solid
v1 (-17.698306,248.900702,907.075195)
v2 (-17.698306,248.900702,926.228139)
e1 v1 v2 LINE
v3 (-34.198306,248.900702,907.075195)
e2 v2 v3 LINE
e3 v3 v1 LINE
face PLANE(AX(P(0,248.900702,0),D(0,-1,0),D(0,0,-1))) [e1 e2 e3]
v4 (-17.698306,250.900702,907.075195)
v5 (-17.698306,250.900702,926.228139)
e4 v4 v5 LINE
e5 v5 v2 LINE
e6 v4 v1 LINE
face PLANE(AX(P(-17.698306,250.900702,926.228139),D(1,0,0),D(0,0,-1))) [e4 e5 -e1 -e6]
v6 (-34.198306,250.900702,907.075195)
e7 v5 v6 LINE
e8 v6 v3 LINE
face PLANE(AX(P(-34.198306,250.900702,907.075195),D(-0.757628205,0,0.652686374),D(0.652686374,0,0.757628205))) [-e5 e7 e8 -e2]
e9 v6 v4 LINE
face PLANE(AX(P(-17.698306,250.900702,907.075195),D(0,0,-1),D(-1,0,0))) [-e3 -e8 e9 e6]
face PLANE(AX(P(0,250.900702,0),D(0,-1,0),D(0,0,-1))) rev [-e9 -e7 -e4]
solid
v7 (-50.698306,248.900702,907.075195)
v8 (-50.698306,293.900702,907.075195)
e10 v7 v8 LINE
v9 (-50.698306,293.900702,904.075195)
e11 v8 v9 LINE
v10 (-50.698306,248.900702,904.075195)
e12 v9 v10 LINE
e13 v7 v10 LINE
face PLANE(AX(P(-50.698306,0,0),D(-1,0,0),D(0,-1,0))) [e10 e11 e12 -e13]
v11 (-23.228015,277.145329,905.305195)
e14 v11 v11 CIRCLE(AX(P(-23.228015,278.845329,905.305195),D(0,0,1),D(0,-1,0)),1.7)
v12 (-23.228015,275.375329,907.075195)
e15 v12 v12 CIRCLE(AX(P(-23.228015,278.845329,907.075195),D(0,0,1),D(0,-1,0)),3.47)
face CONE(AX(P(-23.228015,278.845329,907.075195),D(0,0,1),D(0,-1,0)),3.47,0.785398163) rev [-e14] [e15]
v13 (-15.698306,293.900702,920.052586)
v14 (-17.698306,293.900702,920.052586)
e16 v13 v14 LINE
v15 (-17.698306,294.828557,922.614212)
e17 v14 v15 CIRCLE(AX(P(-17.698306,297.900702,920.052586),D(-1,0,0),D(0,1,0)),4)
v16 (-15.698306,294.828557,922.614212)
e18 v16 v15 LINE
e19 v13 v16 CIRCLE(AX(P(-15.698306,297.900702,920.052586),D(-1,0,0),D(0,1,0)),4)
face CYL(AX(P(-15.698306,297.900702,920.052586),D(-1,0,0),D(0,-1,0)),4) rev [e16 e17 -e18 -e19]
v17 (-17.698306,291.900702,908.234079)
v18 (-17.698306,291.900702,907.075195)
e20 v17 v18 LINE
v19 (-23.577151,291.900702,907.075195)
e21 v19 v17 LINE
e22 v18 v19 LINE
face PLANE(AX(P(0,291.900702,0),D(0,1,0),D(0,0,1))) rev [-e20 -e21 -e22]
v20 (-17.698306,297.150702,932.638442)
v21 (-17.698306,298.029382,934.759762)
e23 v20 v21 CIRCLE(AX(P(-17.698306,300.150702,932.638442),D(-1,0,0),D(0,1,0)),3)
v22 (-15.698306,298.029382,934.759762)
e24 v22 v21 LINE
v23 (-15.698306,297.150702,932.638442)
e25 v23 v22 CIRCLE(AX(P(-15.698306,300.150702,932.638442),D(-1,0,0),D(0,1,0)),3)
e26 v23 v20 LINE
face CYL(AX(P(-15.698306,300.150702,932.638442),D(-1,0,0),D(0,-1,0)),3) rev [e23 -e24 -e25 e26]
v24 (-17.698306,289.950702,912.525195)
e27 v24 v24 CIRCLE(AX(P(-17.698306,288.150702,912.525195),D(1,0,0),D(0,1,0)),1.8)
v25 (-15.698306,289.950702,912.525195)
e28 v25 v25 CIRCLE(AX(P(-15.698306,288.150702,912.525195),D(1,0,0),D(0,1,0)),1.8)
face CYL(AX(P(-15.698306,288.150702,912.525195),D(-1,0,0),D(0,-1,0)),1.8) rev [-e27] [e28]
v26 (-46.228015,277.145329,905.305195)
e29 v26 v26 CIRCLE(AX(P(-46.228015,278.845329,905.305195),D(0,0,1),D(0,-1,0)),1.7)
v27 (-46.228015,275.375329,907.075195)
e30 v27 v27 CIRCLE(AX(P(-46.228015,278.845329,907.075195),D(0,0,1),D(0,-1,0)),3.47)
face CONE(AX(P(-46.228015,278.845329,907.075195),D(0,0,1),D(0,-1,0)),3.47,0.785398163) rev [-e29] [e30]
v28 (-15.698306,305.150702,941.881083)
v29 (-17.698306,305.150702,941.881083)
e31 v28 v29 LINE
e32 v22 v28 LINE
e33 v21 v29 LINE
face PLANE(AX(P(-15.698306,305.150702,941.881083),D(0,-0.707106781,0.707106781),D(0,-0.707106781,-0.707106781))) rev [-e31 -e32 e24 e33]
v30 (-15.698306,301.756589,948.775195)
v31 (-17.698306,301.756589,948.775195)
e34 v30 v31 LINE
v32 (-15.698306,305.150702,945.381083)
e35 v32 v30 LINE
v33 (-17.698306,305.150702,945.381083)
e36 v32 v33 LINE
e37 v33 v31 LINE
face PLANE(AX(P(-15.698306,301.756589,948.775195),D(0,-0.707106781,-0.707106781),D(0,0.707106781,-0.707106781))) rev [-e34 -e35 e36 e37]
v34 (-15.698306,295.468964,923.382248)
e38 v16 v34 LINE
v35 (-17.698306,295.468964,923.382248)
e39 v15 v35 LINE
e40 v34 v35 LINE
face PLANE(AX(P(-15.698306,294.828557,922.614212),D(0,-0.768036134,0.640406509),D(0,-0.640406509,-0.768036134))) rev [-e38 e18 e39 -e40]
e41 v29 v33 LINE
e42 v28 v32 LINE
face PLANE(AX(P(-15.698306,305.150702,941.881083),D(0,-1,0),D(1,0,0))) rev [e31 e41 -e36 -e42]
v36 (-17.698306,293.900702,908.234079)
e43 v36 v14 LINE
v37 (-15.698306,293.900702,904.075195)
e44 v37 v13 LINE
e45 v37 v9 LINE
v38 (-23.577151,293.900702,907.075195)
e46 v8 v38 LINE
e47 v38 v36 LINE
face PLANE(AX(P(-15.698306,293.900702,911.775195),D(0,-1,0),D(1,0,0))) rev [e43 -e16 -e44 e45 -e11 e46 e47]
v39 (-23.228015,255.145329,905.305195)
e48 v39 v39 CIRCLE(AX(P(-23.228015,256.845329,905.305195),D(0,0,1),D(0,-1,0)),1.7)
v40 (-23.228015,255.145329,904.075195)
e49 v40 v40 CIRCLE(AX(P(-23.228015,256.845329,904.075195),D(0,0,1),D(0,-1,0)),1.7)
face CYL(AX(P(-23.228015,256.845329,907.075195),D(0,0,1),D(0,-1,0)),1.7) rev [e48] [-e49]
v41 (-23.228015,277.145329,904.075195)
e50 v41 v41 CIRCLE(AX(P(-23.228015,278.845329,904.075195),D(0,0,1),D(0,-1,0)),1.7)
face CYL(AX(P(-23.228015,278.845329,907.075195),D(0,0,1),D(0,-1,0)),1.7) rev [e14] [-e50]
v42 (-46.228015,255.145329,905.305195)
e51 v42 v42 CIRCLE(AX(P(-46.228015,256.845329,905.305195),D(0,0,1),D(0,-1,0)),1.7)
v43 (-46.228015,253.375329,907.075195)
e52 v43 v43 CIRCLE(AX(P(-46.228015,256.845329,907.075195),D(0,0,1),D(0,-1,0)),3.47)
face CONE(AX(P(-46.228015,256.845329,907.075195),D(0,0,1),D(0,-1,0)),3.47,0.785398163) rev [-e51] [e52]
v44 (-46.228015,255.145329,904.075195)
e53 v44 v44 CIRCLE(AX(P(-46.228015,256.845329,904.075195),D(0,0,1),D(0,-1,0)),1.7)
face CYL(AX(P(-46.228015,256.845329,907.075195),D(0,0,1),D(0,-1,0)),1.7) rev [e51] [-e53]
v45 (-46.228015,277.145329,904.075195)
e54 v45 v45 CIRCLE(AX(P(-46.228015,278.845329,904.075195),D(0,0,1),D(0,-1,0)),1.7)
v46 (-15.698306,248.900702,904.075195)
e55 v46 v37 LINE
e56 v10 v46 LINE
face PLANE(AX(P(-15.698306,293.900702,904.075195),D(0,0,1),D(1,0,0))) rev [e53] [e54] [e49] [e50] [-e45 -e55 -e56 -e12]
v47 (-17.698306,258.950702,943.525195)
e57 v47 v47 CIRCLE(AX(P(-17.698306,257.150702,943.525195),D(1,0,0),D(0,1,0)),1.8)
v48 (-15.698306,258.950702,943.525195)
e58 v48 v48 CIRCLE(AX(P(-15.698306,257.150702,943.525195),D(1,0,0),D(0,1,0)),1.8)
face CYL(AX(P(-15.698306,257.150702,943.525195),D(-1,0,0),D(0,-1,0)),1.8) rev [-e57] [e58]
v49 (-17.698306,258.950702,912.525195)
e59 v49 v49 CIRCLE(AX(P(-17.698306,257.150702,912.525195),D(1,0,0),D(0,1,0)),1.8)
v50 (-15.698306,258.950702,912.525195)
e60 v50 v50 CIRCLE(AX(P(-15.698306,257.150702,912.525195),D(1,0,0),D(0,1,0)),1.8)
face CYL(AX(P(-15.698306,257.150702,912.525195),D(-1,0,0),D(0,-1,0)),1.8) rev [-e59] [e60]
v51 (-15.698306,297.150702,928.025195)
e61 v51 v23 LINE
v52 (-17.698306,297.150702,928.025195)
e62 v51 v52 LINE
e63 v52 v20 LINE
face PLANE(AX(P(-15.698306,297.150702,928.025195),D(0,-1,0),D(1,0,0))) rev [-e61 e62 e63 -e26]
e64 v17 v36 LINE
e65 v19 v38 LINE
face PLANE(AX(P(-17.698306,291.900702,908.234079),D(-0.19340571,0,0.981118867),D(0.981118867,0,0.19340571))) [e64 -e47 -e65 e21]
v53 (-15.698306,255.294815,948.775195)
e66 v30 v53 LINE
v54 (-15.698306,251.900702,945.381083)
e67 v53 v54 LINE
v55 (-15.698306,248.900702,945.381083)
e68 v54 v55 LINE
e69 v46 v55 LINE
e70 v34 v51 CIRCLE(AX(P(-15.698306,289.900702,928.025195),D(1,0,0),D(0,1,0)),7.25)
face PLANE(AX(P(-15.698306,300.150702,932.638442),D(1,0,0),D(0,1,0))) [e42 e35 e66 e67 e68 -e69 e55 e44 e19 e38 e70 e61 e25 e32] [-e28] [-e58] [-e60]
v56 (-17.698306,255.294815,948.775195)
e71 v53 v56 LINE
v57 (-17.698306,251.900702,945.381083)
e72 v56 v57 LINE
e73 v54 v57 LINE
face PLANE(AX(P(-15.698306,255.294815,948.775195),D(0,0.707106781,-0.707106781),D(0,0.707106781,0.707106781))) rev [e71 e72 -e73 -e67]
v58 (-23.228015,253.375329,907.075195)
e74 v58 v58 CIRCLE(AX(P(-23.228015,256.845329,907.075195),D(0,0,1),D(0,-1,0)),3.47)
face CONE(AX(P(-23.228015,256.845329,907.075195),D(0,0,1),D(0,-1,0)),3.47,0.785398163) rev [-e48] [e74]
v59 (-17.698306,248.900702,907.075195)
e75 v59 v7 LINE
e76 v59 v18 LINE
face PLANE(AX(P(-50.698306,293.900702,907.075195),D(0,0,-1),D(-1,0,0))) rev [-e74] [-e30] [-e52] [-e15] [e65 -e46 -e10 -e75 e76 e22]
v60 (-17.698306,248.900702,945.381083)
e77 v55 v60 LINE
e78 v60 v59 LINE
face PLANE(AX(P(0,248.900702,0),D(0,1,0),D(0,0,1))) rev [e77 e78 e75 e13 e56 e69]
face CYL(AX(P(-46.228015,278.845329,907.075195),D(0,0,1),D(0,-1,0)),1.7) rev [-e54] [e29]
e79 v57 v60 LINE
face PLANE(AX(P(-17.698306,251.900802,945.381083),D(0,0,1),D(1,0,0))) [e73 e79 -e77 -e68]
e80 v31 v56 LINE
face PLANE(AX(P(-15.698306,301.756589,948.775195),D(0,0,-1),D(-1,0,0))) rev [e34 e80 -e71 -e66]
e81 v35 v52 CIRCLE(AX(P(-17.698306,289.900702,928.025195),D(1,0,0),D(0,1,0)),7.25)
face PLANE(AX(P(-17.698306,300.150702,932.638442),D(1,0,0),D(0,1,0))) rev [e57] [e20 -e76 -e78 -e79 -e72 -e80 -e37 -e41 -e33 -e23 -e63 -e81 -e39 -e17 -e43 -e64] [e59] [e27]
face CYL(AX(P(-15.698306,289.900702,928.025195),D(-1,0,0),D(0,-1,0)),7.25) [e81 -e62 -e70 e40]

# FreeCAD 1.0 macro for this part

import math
import FreeCAD as App
import Part
import Sketcher
Q = App.Units.Quantity

doc = App.newDocument("Part")
params = doc.addObject("Spreadsheet::Sheet", "Params")
for row, (alias, value) in enumerate([
    ("sketch1_radius", "4 mm"),
    ("sketch1_radius2", "3 mm"),
    ("sketch1_diameter", "3.6 mm"),
    ("sketch1_width", "42 mm"),
    ("sketch1_radius3", "7.25 mm"),
    ("pad1_length", "2 mm"),
    ("sketch2_width", "42 mm"),
    ("sketch2_height", "3 mm"),
    ("pad2_length", "33 mm"),
    ("sketch3_height", "3.65 mm"),
    ("pad3_length", "1 mm"),
    ("sketch4_width", "33 mm"),
    ("sketch4_width2", "35 mm"),
    ("sketch4_height", "3 mm"),
    ("pad4_length", "3 mm"),
    ("pad4_length2", "0.0001 mm"),
    ("pad5_length", "2.5 mm"),
    ("pocket1_length", "3 mm"),
    ("pocket2_length", "3 mm"),
    ("sketch8_height", "3 mm"),
    ("sketch8_width", "1.7 mm"),
    ("sketch8_width2", "3.47 mm"),
    ("groove_angle", "360 deg"),
    ("linearpattern_pitch", "23 mm"),
    ("linearpattern2_pitch", "22 mm"),
    ("linearpattern3_pitch", "31.827661 mm"),
    ("pad6_length", "2 mm"),
    ("sketch10_width", "16.5 mm"),
    ("pad7_length", "2 mm"),
], start=1):
    params.set(f"A{row}", alias)
    params.set(f"B{row}", "=" + value)
    params.setAlias(f"B{row}", alias)

body = doc.addObject("PartDesign::Body", "Body")

sketch1 = body.newObject("Sketcher::SketchObject", "Sketch")
sketch1.AttachmentSupport = (doc.getObject("YZ_Plane"), [""])
sketch1.MapMode = "FlatFace"
sketch1.AttachmentOffset = App.Placement(App.Vector(0, 0, -17.698306), App.Rotation())
sketch1.addGeometry(Part.LineSegment(App.Vector(251.9, 904.1, 0), App.Vector(293.9, 904.1, 0)), False)
sketch1.addGeometry(Part.LineSegment(App.Vector(293.9, 904.1, 0), App.Vector(293.9, 920.1, 0)), False)
sketch1.addGeometry(Part.ArcOfCircle(Part.Circle(App.Vector(297.9, 920.1, 0), App.Vector(0, 0, 1), 4), math.radians(140), math.radians(180)), False)
sketch1.addGeometry(Part.LineSegment(App.Vector(294.8, 922.6, 0), App.Vector(295.5, 923.4, 0)), False)
sketch1.addGeometry(Part.ArcOfCircle(Part.Circle(App.Vector(289.9, 928, 0), App.Vector(0, 0, 1), 7.2), math.radians(-40), math.radians(0)), False)
sketch1.addGeometry(Part.LineSegment(App.Vector(297.2, 928, 0), App.Vector(297.2, 932.6, 0)), False)
sketch1.addGeometry(Part.ArcOfCircle(Part.Circle(App.Vector(300.2, 932.6, 0), App.Vector(0, 0, 1), 3), math.radians(135), math.radians(180)), False)
sketch1.addGeometry(Part.LineSegment(App.Vector(298, 934.8, 0), App.Vector(301.8, 938.5, 0)), False)
sketch1.addGeometry(Part.LineSegment(App.Vector(301.8, 938.5, 0), App.Vector(305.2, 941.9, 0)), False)
sketch1.addGeometry(Part.LineSegment(App.Vector(305.2, 941.9, 0), App.Vector(305.2, 945.4, 0)), False)
sketch1.addGeometry(Part.LineSegment(App.Vector(305.2, 945.4, 0), App.Vector(301.8, 948.8, 0)), False)
sketch1.addGeometry(Part.LineSegment(App.Vector(301.8, 948.8, 0), App.Vector(255.3, 948.8, 0)), False)
sketch1.addGeometry(Part.LineSegment(App.Vector(255.3, 948.8, 0), App.Vector(251.9, 945.4, 0)), False)
sketch1.addGeometry(Part.LineSegment(App.Vector(251.9, 945.4, 0), App.Vector(251.9, 904.1, 0)), False)
sketch1.addGeometry(Part.Circle(App.Vector(257.2, 912.5, 0), App.Vector(0, 0, 1), 1.8), False)
sketch1.addGeometry(Part.Circle(App.Vector(257.2, 943.5, 0), App.Vector(0, 0, 1), 1.8), False)
sketch1.addGeometry(Part.Circle(App.Vector(288.2, 912.5, 0), App.Vector(0, 0, 1), 1.8), False)
sketch1.addConstraint(Sketcher.Constraint("Coincident", 0, 2, 1, 1))
sketch1.addConstraint(Sketcher.Constraint("Tangent", 1, 2, 2, 2))
sketch1.addConstraint(Sketcher.Constraint("Tangent", 2, 1, 3, 1))
sketch1.addConstraint(Sketcher.Constraint("Tangent", 3, 2, 4, 1))
sketch1.addConstraint(Sketcher.Constraint("Tangent", 4, 2, 5, 1))
sketch1.addConstraint(Sketcher.Constraint("Tangent", 5, 2, 6, 2))
sketch1.addConstraint(Sketcher.Constraint("Tangent", 6, 1, 7, 1))
sketch1.addConstraint(Sketcher.Constraint("Coincident", 7, 2, 8, 1))
sketch1.addConstraint(Sketcher.Constraint("Coincident", 8, 2, 9, 1))
sketch1.addConstraint(Sketcher.Constraint("Coincident", 9, 2, 10, 1))
sketch1.addConstraint(Sketcher.Constraint("Coincident", 10, 2, 11, 1))
sketch1.addConstraint(Sketcher.Constraint("Coincident", 11, 2, 12, 1))
sketch1.addConstraint(Sketcher.Constraint("Coincident", 12, 2, 13, 1))
sketch1.addConstraint(Sketcher.Constraint("Coincident", 13, 2, 0, 1))
sketch1.addConstraint(Sketcher.Constraint("Horizontal", 0))
sketch1.addConstraint(Sketcher.Constraint("Vertical", 1))
sketch1.addConstraint(Sketcher.Constraint("Vertical", 5))
sketch1.addConstraint(Sketcher.Constraint("Vertical", 9))
sketch1.addConstraint(Sketcher.Constraint("Horizontal", 11))
sketch1.addConstraint(Sketcher.Constraint("Vertical", 13))
sketch1.addConstraint(Sketcher.Constraint("Equal", 14, 15))
sketch1.addConstraint(Sketcher.Constraint("Equal", 15, 16))
sketch1.addConstraint(Sketcher.Constraint("Parallel", 7, 8))
sketch1.addConstraint(Sketcher.Constraint("Perpendicular", 8, 10))
sketch1.addConstraint(Sketcher.Constraint("Perpendicular", 10, 12))
sketch1.addConstraint(Sketcher.Constraint("Horizontal", 14, 3, 16, 3))
sketch1.addConstraint(Sketcher.Constraint("Horizontal", 9, 2, 12, 2))
sketch1.addConstraint(Sketcher.Constraint("Vertical", 14, 3, 15, 3))
sketch1.addConstraint(Sketcher.Constraint("Vertical", 7, 2, 10, 2))
sketch1.addConstraint(Sketcher.Constraint("Equal", 8, 10))
sketch1.addConstraint(Sketcher.Constraint("Radius", 2, 4.0))
sketch1.addConstraint(Sketcher.Constraint("Radius", 6, 3.0))
sketch1.addConstraint(Sketcher.Constraint("Diameter", 14, 3.6))
sketch1.addConstraint(Sketcher.Constraint("DistanceX", 0, 1, 0, 2, 42.0))
sketch1.addConstraint(Sketcher.Constraint("Radius", 4, 7.25))
sketch1.addConstraint(Sketcher.Constraint("Distance", 3, 1.0))
sketch1.addConstraint(Sketcher.Constraint("DistanceY", 9, 1, 9, 2, 3.5))
sketch1.addConstraint(Sketcher.Constraint("DistanceX", 4, 3, 2, 3, 8.0))
sketch1.addConstraint(Sketcher.Constraint("DistanceX", 14, 3, 6, 3, 43.0))
sketch1.addConstraint(Sketcher.Constraint("DistanceY", 14, 3, 15, 3, 31.0))
sketch1.addConstraint(Sketcher.Constraint("DistanceX", 16, 3, 6, 3, 12.0))
sketch1.addConstraint(Sketcher.Constraint("DistanceX", 6, 3, 8, 2, 5.0))
sketch1.addConstraint(Sketcher.Constraint("Distance", 8, 4.8))
sketch1.addConstraint(Sketcher.Constraint("DistanceY", 14, 3, 4, 3, 15.5))
sketch1.addConstraint(Sketcher.Constraint("DistanceY", 0, 2, 16, 3, 8.45))
sketch1.addConstraint(Sketcher.Constraint("DistanceY", 15, 3, 11, 2, 5.25))
sketch1.addConstraint(Sketcher.Constraint("DistanceX", -1, 1, 2, 3, 297.900702))
sketch1.addConstraint(Sketcher.Constraint("DistanceY", -1, 1, 2, 1, 922.614212))
sketch1.setExpression("Constraints[30]", "Params.sketch1_radius")
sketch1.setExpression("Constraints[31]", "Params.sketch1_radius2")
sketch1.setExpression("Constraints[32]", "Params.sketch1_diameter")
sketch1.setExpression("Constraints[33]", "Params.sketch1_width")
sketch1.setExpression("Constraints[34]", "Params.sketch1_radius3")
pad1 = body.newObject("PartDesign::Pad", "Pad")
pad1.Profile = sketch1
pad1.setExpression("Length", "Params.pad1_length")

sketch2 = body.newObject("Sketcher::SketchObject", "Sketch001")
sketch2.AttachmentSupport = (doc.getObject("YZ_Plane"), [""])
sketch2.MapMode = "FlatFace"
sketch2.AttachmentOffset = App.Placement(App.Vector(0, 0, -17.698306), App.Rotation())
sketch2.addGeometry(Part.LineSegment(App.Vector(251.9, 907.1, 0), App.Vector(293.9, 907.1, 0)), False)
sketch2.addGeometry(Part.LineSegment(App.Vector(293.9, 907.1, 0), App.Vector(293.9, 904.1, 0)), False)
sketch2.addGeometry(Part.LineSegment(App.Vector(293.9, 904.1, 0), App.Vector(251.9, 904.1, 0)), False)
sketch2.addGeometry(Part.LineSegment(App.Vector(251.9, 904.1, 0), App.Vector(251.9, 907.1, 0)), False)
sketch2.addConstraint(Sketcher.Constraint("Coincident", 0, 2, 1, 1))
sketch2.addConstraint(Sketcher.Constraint("Coincident", 1, 2, 2, 1))
sketch2.addConstraint(Sketcher.Constraint("Coincident", 2, 2, 3, 1))
sketch2.addConstraint(Sketcher.Constraint("Coincident", 3, 2, 0, 1))
sketch2.addConstraint(Sketcher.Constraint("Horizontal", 0))
sketch2.addConstraint(Sketcher.Constraint("Vertical", 1))
sketch2.addConstraint(Sketcher.Constraint("Horizontal", 2))
sketch2.addConstraint(Sketcher.Constraint("Vertical", 3))
sketch2.addConstraint(Sketcher.Constraint("DistanceX", 0, 1, 0, 2, 42.0))
sketch2.addConstraint(Sketcher.Constraint("DistanceY", 1, 2, 1, 1, 3.0))
sketch2.addConstraint(Sketcher.Constraint("DistanceX", -1, 1, 0, 2, 293.900702))
sketch2.addConstraint(Sketcher.Constraint("DistanceY", -1, 1, 0, 2, 907.075195))
sketch2.setExpression("Constraints[8]", "Params.sketch2_width")
sketch2.setExpression("Constraints[9]", "Params.sketch2_height")
pad2 = body.newObject("PartDesign::Pad", "Pad001")
pad2.Profile = sketch2
pad2.setExpression("Length", "Params.pad2_length")
pad2.Reversed = True

sketch3 = body.newObject("Sketcher::SketchObject", "Sketch002")
sketch3.AttachmentSupport = (doc.getObject("XZ_Plane"), [""])
sketch3.MapMode = "FlatFace"
sketch3.AttachmentOffset = App.Placement(App.Vector(0, 0, -293.900702), App.Rotation())
sketch3.addGeometry(Part.LineSegment(App.Vector(-17.7, 910.7, 0), App.Vector(24.1, 907.1, 0)), False)
sketch3.addGeometry(Part.LineSegment(App.Vector(24.1, 907.1, 0), App.Vector(-17.7, 907.1, 0)), False)
sketch3.addGeometry(Part.LineSegment(App.Vector(-17.7, 907.1, 0), App.Vector(-17.7, 910.7, 0)), False)
sketch3.addConstraint(Sketcher.Constraint("Coincident", 0, 2, 1, 1))
sketch3.addConstraint(Sketcher.Constraint("Coincident", 1, 2, 2, 1))
sketch3.addConstraint(Sketcher.Constraint("Coincident", 2, 2, 0, 1))
sketch3.addConstraint(Sketcher.Constraint("Horizontal", 1))
sketch3.addConstraint(Sketcher.Constraint("Vertical", 2))
sketch3.addConstraint(Sketcher.Constraint("DistanceY", 2, 1, 2, 2, 3.65))
sketch3.addConstraint(Sketcher.Constraint("DistanceX", 1, 2, 1, 1, 41.792958))
sketch3.addConstraint(Sketcher.Constraint("DistanceX", -1, 1, 0, 2, 24.094653))
sketch3.addConstraint(Sketcher.Constraint("DistanceY", -1, 1, 0, 2, 907.075195))
sketch3.setExpression("Constraints[5]", "Params.sketch3_height")
pad3 = body.newObject("PartDesign::Pad", "Pad002")
pad3.Profile = sketch3
pad3.setExpression("Length", "Params.pad3_length")

sketch4 = body.newObject("Sketcher::SketchObject", "Sketch003")
sketch4.AttachmentSupport = (doc.getObject("XZ_Plane"), [""])
sketch4.MapMode = "FlatFace"
sketch4.AttachmentOffset = App.Placement(App.Vector(0, 0, -251.900702), App.Rotation())
sketch4.addGeometry(Part.LineSegment(App.Vector(-17.7, 907.1, 0), App.Vector(-50.7, 907.1, 0)), False)
sketch4.addGeometry(Part.LineSegment(App.Vector(-50.7, 907.1, 0), App.Vector(-50.7, 904.1, 0)), False)
sketch4.addGeometry(Part.LineSegment(App.Vector(-50.7, 904.1, 0), App.Vector(-15.7, 904.1, 0)), False)
sketch4.addGeometry(Part.LineSegment(App.Vector(-15.7, 904.1, 0), App.Vector(-15.7, 945.4, 0)), False)
sketch4.addGeometry(Part.LineSegment(App.Vector(-15.7, 945.4, 0), App.Vector(-17.7, 945.4, 0)), False)
sketch4.addGeometry(Part.LineSegment(App.Vector(-17.7, 945.4, 0), App.Vector(-17.7, 907.1, 0)), False)
sketch4.addConstraint(Sketcher.Constraint("Coincident", 0, 2, 1, 1))
sketch4.addConstraint(Sketcher.Constraint("Coincident", 1, 2, 2, 1))
sketch4.addConstraint(Sketcher.Constraint("Coincident", 2, 2, 3, 1))
sketch4.addConstraint(Sketcher.Constraint("Coincident", 3, 2, 4, 1))
sketch4.addConstraint(Sketcher.Constraint("Coincident", 4, 2, 5, 1))
sketch4.addConstraint(Sketcher.Constraint("Coincident", 5, 2, 0, 1))
sketch4.addConstraint(Sketcher.Constraint("Horizontal", 0))
sketch4.addConstraint(Sketcher.Constraint("Vertical", 1))
sketch4.addConstraint(Sketcher.Constraint("Horizontal", 2))
sketch4.addConstraint(Sketcher.Constraint("Vertical", 3))
sketch4.addConstraint(Sketcher.Constraint("Horizontal", 4))
sketch4.addConstraint(Sketcher.Constraint("Vertical", 5))
sketch4.addConstraint(Sketcher.Constraint("DistanceX", 0, 2, 0, 1, 33.0))
sketch4.addConstraint(Sketcher.Constraint("DistanceX", 2, 1, 2, 2, 35.0))
sketch4.addConstraint(Sketcher.Constraint("DistanceY", 1, 2, 1, 1, 3.0))
sketch4.addConstraint(Sketcher.Constraint("DistanceY", 3, 1, 3, 2, 41.305887))
sketch4.addConstraint(Sketcher.Constraint("DistanceX", 0, 2, -1, 1, 50.698306))
sketch4.addConstraint(Sketcher.Constraint("DistanceY", -1, 1, 0, 2, 907.075195))
sketch4.setExpression("Constraints[12]", "Params.sketch4_width")
sketch4.setExpression("Constraints[13]", "Params.sketch4_width2")
sketch4.setExpression("Constraints[14]", "Params.sketch4_height")
pad4 = body.newObject("PartDesign::Pad", "Pad003")
pad4.Profile = sketch4
pad4.Type = "TwoLengths"
pad4.setExpression("Length", "Params.pad4_length")
pad4.setExpression("Length2", "Params.pad4_length2")

sketch5 = body.newObject("Sketcher::SketchObject", "Sketch004")
sketch5.AttachmentSupport = (doc.getObject("XZ_Plane"), [""])
sketch5.MapMode = "FlatFace"
sketch5.AttachmentOffset = App.Placement(App.Vector(0, 0, -248.900702), App.Rotation())
sketch5.addGeometry(Part.LineSegment(App.Vector(12, 907, 0), App.Vector(-18, 926, 0)), False)
sketch5.addGeometry(Part.LineSegment(App.Vector(-18, 926, 0), App.Vector(-18, 907, 0)), False)
sketch5.addGeometry(Part.LineSegment(App.Vector(-18, 907, 0), App.Vector(12, 907, 0)), False)
sketch5.addConstraint(Sketcher.Constraint("Coincident", 0, 2, 1, 1))
sketch5.addConstraint(Sketcher.Constraint("Coincident", 1, 2, 2, 1))
sketch5.addConstraint(Sketcher.Constraint("Coincident", 2, 2, 0, 1))
sketch5.addConstraint(Sketcher.Constraint("Vertical", 1))
sketch5.addConstraint(Sketcher.Constraint("Horizontal", 2))
sketch5.addConstraint(Sketcher.Constraint("DistanceX", 2, 1, 2, 2, 29.494194))
sketch5.addConstraint(Sketcher.Constraint("DistanceY", 1, 2, 1, 1, 19.152944))
sketch5.addConstraint(Sketcher.Constraint("DistanceY", -1, 1, 0, 2, 926.228139))
sketch5.addConstraint(Sketcher.Constraint("DistanceX", 0, 2, -1, 1, 17.698306))
pad5 = body.newObject("PartDesign::Pad", "Pad004")
pad5.Profile = sketch5
pad5.setExpression("Length", "Params.pad5_length")
pad5.Reversed = True

sketch6 = body.newObject("Sketcher::SketchObject", "Sketch005")
sketch6.AttachmentSupport = (doc.getObject("XZ_Plane"), [""])
sketch6.MapMode = "FlatFace"
sketch6.AttachmentOffset = App.Placement(App.Vector(0, 0, -293.900702), App.Rotation())
sketch6.addGeometry(Part.LineSegment(App.Vector(-15.7, 907.1, 0), App.Vector(-15.7, 910.6, 0)), False)
sketch6.addGeometry(Part.LineSegment(App.Vector(-15.7, 910.6, 0), App.Vector(24.1, 907.1, 0)), False)
sketch6.addGeometry(Part.LineSegment(App.Vector(24.1, 907.1, 0), App.Vector(-15.7, 907.1, 0)), False)
sketch6.addConstraint(Sketcher.Constraint("Coincident", 0, 2, 1, 1))
sketch6.addConstraint(Sketcher.Constraint("Coincident", 1, 2, 2, 1))
sketch6.addConstraint(Sketcher.Constraint("Coincident", 2, 2, 0, 1))
sketch6.addConstraint(Sketcher.Constraint("Vertical", 0))
sketch6.addConstraint(Sketcher.Constraint("Horizontal", 2))
sketch6.addConstraint(Sketcher.Constraint("DistanceX", 2, 2, 2, 1, 39.792958))
sketch6.addConstraint(Sketcher.Constraint("DistanceY", 0, 1, 0, 2, 3.475329))
sketch6.addConstraint(Sketcher.Constraint("DistanceX", 0, 2, -1, 1, 15.698306))
sketch6.addConstraint(Sketcher.Constraint("DistanceY", -1, 1, 0, 2, 910.550525))
pocket1 = body.newObject("PartDesign::Pocket", "Pocket")
pocket1.Profile = sketch6
pocket1.setExpression("Length", "Params.pocket1_length")
pocket1.Reversed = True

sketch7 = body.newObject("Sketcher::SketchObject", "Sketch006")
sketch7.AttachmentSupport = (doc.getObject("XZ_Plane"), [""])
sketch7.MapMode = "FlatFace"
sketch7.AttachmentOffset = App.Placement(App.Vector(0, 0, -251.400702), App.Rotation())
sketch7.addGeometry(Part.LineSegment(App.Vector(12, 907, 0), App.Vector(-16, 907, 0)), False)
sketch7.addGeometry(Part.LineSegment(App.Vector(-16, 907, 0), App.Vector(-16, 925, 0)), False)
sketch7.addGeometry(Part.LineSegment(App.Vector(-16, 925, 0), App.Vector(12, 907, 0)), False)
sketch7.addConstraint(Sketcher.Constraint("Coincident", 0, 2, 1, 1))
sketch7.addConstraint(Sketcher.Constraint("Coincident", 1, 2, 2, 1))
sketch7.addConstraint(Sketcher.Constraint("Coincident", 2, 2, 0, 1))
sketch7.addConstraint(Sketcher.Constraint("Horizontal", 0))
sketch7.addConstraint(Sketcher.Constraint("Vertical", 1))
sketch7.addConstraint(Sketcher.Constraint("DistanceX", 0, 2, 0, 1, 27.494194))
sketch7.addConstraint(Sketcher.Constraint("DistanceY", 1, 1, 1, 2, 17.854183))
sketch7.addConstraint(Sketcher.Constraint("DistanceY", -1, 1, 1, 2, 924.929379))
sketch7.addConstraint(Sketcher.Constraint("DistanceX", 0, 2, -1, 1, 15.698306))
pocket2 = body.newObject("PartDesign::Pocket", "Pocket001")
pocket2.Profile = sketch7
pocket2.setExpression("Length", "Params.pocket2_length")
pocket2.Reversed = True

sketch8 = body.newObject("Sketcher::SketchObject", "Sketch007")
sketch8.AttachmentSupport = (doc.getObject("YZ_Plane"), [""])
sketch8.MapMode = "FlatFace"
sketch8.AttachmentOffset = App.Placement(App.Vector(0, 0, -46.228015), App.Rotation())
sketch8.addGeometry(Part.LineSegment(App.Vector(278.8, 904.1, 0), App.Vector(278.8, 907.1, 0)), False)
sketch8.addGeometry(Part.LineSegment(App.Vector(278.8, 907.1, 0), App.Vector(275.4, 907.1, 0)), False)
sketch8.addGeometry(Part.LineSegment(App.Vector(275.4, 907.1, 0), App.Vector(277.1, 905.3, 0)), False)
sketch8.addGeometry(Part.LineSegment(App.Vector(277.1, 905.3, 0), App.Vector(277.1, 904.1, 0)), False)
sketch8.addGeometry(Part.LineSegment(App.Vector(277.1, 904.1, 0), App.Vector(278.8, 904.1, 0)), False)
sketch8.addGeometry(Part.LineSegment(App.Vector(278.8, 907.1, 0), App.Vector(278.8, 904.1, 0)), True)
sketch8.addConstraint(Sketcher.Constraint("Coincident", 0, 2, 1, 1))
sketch8.addConstraint(Sketcher.Constraint("Coincident", 1, 2, 2, 1))
sketch8.addConstraint(Sketcher.Constraint("Coincident", 2, 2, 3, 1))
sketch8.addConstraint(Sketcher.Constraint("Coincident", 3, 2, 4, 1))
sketch8.addConstraint(Sketcher.Constraint("Coincident", 4, 2, 0, 1))
sketch8.addConstraint(Sketcher.Constraint("Vertical", 0))
sketch8.addConstraint(Sketcher.Constraint("Horizontal", 1))
sketch8.addConstraint(Sketcher.Constraint("Vertical", 3))
sketch8.addConstraint(Sketcher.Constraint("Horizontal", 4))
sketch8.addConstraint(Sketcher.Constraint("Vertical", 5))
sketch8.addConstraint(Sketcher.Constraint("Coincident", 5, 1, 0, 2))
sketch8.addConstraint(Sketcher.Constraint("Horizontal", 3, 2, 5, 2))
sketch8.addConstraint(Sketcher.Constraint("DistanceY", 0, 1, 0, 2, 3.0))
sketch8.addConstraint(Sketcher.Constraint("Angle", 2, Q("-45 deg")))
sketch8.addConstraint(Sketcher.Constraint("DistanceX", 4, 1, 4, 2, 1.7))
sketch8.addConstraint(Sketcher.Constraint("DistanceX", 1, 2, 1, 1, 3.47))
sketch8.addConstraint(Sketcher.Constraint("DistanceX", -1, 1, 0, 2, 278.845329))
sketch8.addConstraint(Sketcher.Constraint("DistanceY", -1, 1, 0, 2, 907.075195))
sketch8.setExpression("Constraints[12]", "Params.sketch8_height")
sketch8.setExpression("Constraints[14]", "Params.sketch8_width")
sketch8.setExpression("Constraints[15]", "Params.sketch8_width2")
groove = body.newObject("PartDesign::Groove", "Groove")
groove.Profile = sketch8
groove.ReferenceAxis = (sketch8, ["Axis0"])
groove.setExpression("Angle", "Params.groove_angle")
doc.recompute()

linearpattern = body.newObject("PartDesign::LinearPattern", "LinearPattern")
linearpattern.Originals = [groove]
linearpattern.Direction = (doc.getObject("X_Axis"), [""])
linearpattern.Mode = "offset"
linearpattern.setExpression("Offset", "Params.linearpattern_pitch")
linearpattern.Occurrences = 2
body.Tip = linearpattern
doc.recompute()

linearpattern2 = body.newObject("PartDesign::LinearPattern", "LinearPattern001")
linearpattern2.Originals = [groove]
linearpattern2.Direction = (doc.getObject("Y_Axis"), [""])
linearpattern2.Mode = "offset"
linearpattern2.setExpression("Offset", "Params.linearpattern2_pitch")
linearpattern2.Occurrences = 2
linearpattern2.Reversed = True
body.Tip = linearpattern2
doc.recompute()

datumline = body.newObject("PartDesign::Line", "DatumLine")
datumline.Placement = App.Placement(App.Vector(0, 0, 0), App.Rotation(App.Vector(0, 0, 1), App.Vector(0.722641857, -0.691222646, 0)))
linearpattern3 = body.newObject("PartDesign::LinearPattern", "LinearPattern002")
linearpattern3.Originals = [groove]
linearpattern3.Direction = (datumline, [""])
linearpattern3.Mode = "offset"
linearpattern3.setExpression("Offset", "Params.linearpattern3_pitch")
linearpattern3.Occurrences = 2
body.Tip = linearpattern3

sketch9 = body.newObject("Sketcher::SketchObject", "Sketch008")
sketch9.AttachmentSupport = (doc.getObject("XZ_Plane"), [""])
sketch9.MapMode = "FlatFace"
sketch9.AttachmentOffset = App.Placement(App.Vector(0, 0, -293.900702), App.Rotation())
sketch9.addGeometry(Part.LineSegment(App.Vector(-23.6, 907.1, 0), App.Vector(-17.7, 908.2, 0)), False)
sketch9.addGeometry(Part.LineSegment(App.Vector(-17.7, 908.2, 0), App.Vector(-17.7, 907.1, 0)), False)
sketch9.addGeometry(Part.LineSegment(App.Vector(-17.7, 907.1, 0), App.Vector(-23.6, 907.1, 0)), False)
sketch9.addConstraint(Sketcher.Constraint("Coincident", 0, 2, 1, 1))
sketch9.addConstraint(Sketcher.Constraint("Coincident", 1, 2, 2, 1))
sketch9.addConstraint(Sketcher.Constraint("Coincident", 2, 2, 0, 1))
sketch9.addConstraint(Sketcher.Constraint("Vertical", 1))
sketch9.addConstraint(Sketcher.Constraint("Horizontal", 2))
sketch9.addConstraint(Sketcher.Constraint("Distance", 0, 5.991981))
sketch9.addConstraint(Sketcher.Constraint("DistanceX", 2, 2, 2, 1, 5.878845))
sketch9.addConstraint(Sketcher.Constraint("DistanceY", -1, 1, 0, 2, 908.234079))
sketch9.addConstraint(Sketcher.Constraint("DistanceX", 2, 2, -1, 1, 23.577151))
pad6 = body.newObject("PartDesign::Pad", "Pad005")
pad6.Profile = sketch9
pad6.setExpression("Length", "Params.pad6_length")
body2 = doc.addObject("PartDesign::Body", "Body001")

sketch10 = body2.newObject("Sketcher::SketchObject", "Sketch009")
sketch10.AttachmentSupport = (doc.getObject("XZ_Plane001"), [""])
sketch10.MapMode = "FlatFace"
sketch10.AttachmentOffset = App.Placement(App.Vector(0, 0, -248.900702), App.Rotation())
sketch10.addGeometry(Part.LineSegment(App.Vector(-18, 926, 0), App.Vector(-34, 907, 0)), False)
sketch10.addGeometry(Part.LineSegment(App.Vector(-34, 907, 0), App.Vector(-18, 907, 0)), False)
sketch10.addGeometry(Part.LineSegment(App.Vector(-18, 907, 0), App.Vector(-18, 926, 0)), False)
sketch10.addConstraint(Sketcher.Constraint("Coincident", 0, 2, 1, 1))
sketch10.addConstraint(Sketcher.Constraint("Coincident", 1, 2, 2, 1))
sketch10.addConstraint(Sketcher.Constraint("Coincident", 2, 2, 0, 1))
sketch10.addConstraint(Sketcher.Constraint("Horizontal", 1))
sketch10.addConstraint(Sketcher.Constraint("Vertical", 2))
sketch10.addConstraint(Sketcher.Constraint("DistanceX", 1, 1, 1, 2, 16.5))
sketch10.addConstraint(Sketcher.Constraint("DistanceY", 2, 1, 2, 2, 19.152944))
sketch10.addConstraint(Sketcher.Constraint("DistanceY", -1, 1, 2, 2, 926.228139))
sketch10.addConstraint(Sketcher.Constraint("DistanceX", 0, 2, -1, 1, 34.198306))
sketch10.setExpression("Constraints[5]", "Params.sketch10_width")
pad7 = body2.newObject("PartDesign::Pad", "Pad006")
pad7.Profile = sketch10
pad7.setExpression("Length", "Params.pad7_length")
pad7.Reversed = True

doc.recompute()
